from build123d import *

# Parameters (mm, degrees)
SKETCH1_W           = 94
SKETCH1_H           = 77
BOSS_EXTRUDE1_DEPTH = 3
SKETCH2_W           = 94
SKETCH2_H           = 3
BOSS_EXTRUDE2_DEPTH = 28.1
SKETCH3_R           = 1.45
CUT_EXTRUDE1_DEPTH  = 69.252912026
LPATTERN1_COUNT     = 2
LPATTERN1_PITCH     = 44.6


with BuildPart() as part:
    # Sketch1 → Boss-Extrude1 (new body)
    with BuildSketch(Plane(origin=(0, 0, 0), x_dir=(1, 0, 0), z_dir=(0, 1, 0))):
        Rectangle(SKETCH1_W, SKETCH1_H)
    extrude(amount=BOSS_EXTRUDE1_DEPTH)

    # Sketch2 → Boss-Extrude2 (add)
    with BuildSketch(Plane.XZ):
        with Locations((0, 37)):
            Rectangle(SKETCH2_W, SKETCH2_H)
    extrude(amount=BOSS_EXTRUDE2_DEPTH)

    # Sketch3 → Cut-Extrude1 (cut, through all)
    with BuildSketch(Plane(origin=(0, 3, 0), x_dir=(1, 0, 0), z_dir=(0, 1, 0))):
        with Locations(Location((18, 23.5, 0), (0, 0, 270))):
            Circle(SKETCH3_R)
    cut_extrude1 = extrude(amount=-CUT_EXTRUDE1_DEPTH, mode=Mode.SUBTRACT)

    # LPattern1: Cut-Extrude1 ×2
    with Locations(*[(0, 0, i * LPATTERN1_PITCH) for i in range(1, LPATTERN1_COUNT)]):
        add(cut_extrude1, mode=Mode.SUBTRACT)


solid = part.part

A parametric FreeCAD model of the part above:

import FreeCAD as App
import Part
import Sketcher
Q = App.Units.Quantity


def add_polygon(sketch, points):
    """Adds a closed chain of lines whose ends are joined by coincident constraints."""
    first, n = sketch.GeometryCount, len(points)
    for a, b in zip(points, points[1:] + points[:1]):
        sketch.addGeometry(Part.LineSegment(App.Vector(*a, 0), App.Vector(*b, 0)), False)
    for i in range(n):
        sketch.addConstraint(Sketcher.Constraint("Coincident", first + i, 2, first + (i + 1) % n, 1))

doc = App.newDocument("Part")
body = doc.addObject("PartDesign::Body", "Body")

# Sketch on XZ plane
sketch1 = doc.addObject("Sketcher::SketchObject", "Sketch")
body.addObject(sketch1)
sketch1.AttachmentSupport = (doc.XZ_Plane, [""])
sketch1.MapMode = "FlatFace"
add_polygon(sketch1, [(-47, -38), (-47, 38), (47, 38), (47, -38)])  # lines 0-3
sketch1.addConstraint([
    Sketcher.Constraint("Vertical", 0),
    Sketcher.Constraint("Horizontal", 1),
    Sketcher.Constraint("Vertical", 2),
    Sketcher.Constraint("Horizontal", 3),
    Sketcher.Constraint("Symmetric", 0, 2, 2, 2, -1, 1),
    Sketcher.Constraint("DistanceX", 1, 1, 1, 2, Q("94 mm")),
    Sketcher.Constraint("DistanceY", 0, 1, 0, 2, Q("77 mm")),
])
pad1 = doc.addObject("PartDesign::Pad", "Pad")
body.addObject(pad1)
pad1.Profile = sketch1
pad1.Length = 3
pad1.Reversed = True

# Sketch on XZ plane
sketch2 = doc.addObject("Sketcher::SketchObject", "Sketch001")
body.addObject(sketch2)
sketch2.AttachmentSupport = (doc.XZ_Plane, [""])
sketch2.MapMode = "FlatFace"
add_polygon(sketch2, [(-47, 38.5), (-47, 35.5), (47, 35.5), (47, 38.5)])  # lines 0-3
sketch2.addConstraint([
    Sketcher.Constraint("Vertical", 0),
    Sketcher.Constraint("Horizontal", 1),
    Sketcher.Constraint("Vertical", 2),
    Sketcher.Constraint("Horizontal", 3),
    Sketcher.Constraint("DistanceX", 1, 1, 1, 2, Q("94 mm")),
    Sketcher.Constraint("DistanceY", 0, 2, 0, 1, Q("3 mm")),
    Sketcher.Constraint("DistanceX", 0, 2, -1, 1, Q("47 mm")),
    Sketcher.Constraint("DistanceY", -1, 1, 0, 2, Q("35.5 mm")),
])
pad2 = doc.addObject("PartDesign::Pad", "Pad001")
body.addObject(pad2)
pad2.Profile = sketch2
pad2.Length = 28.1

# Sketch on XZ plane
sketch3 = doc.addObject("Sketcher::SketchObject", "Sketch002")
body.addObject(sketch3)
sketch3.AttachmentSupport = (doc.XZ_Plane, [""])
sketch3.MapMode = "FlatFace"
sketch3.AttachmentOffset = App.Placement(App.Vector(0, 0, -3), App.Rotation())
sketch3.addGeometry(Part.Circle(App.Vector(18, -23.5, 0), App.Vector(0, 0, 1), 1.4), False)
sketch3.addConstraint([
    Sketcher.Constraint("Diameter", 0, Q("2.9 mm")),
    Sketcher.Constraint("DistanceX", -1, 1, 0, 3, Q("18 mm")),
    Sketcher.Constraint("DistanceY", 0, 3, -1, 1, Q("23.5 mm")),
])
pocket1 = doc.addObject("PartDesign::Pocket", "Pocket")
body.addObject(pocket1)
pocket1.Profile = sketch3
pocket1.Type = "ThroughAll"
pocket1.Reversed = True
doc.recompute()

linearpattern = doc.addObject("PartDesign::LinearPattern", "LinearPattern")
body.addObject(linearpattern)
linearpattern.Originals = [pocket1]
linearpattern.Direction = (doc.Z_Axis, [""])
linearpattern.Mode = "offset"
linearpattern.Offset = 44.6
linearpattern.Occurrences = 2
body.Tip = linearpattern

doc.recompute()
